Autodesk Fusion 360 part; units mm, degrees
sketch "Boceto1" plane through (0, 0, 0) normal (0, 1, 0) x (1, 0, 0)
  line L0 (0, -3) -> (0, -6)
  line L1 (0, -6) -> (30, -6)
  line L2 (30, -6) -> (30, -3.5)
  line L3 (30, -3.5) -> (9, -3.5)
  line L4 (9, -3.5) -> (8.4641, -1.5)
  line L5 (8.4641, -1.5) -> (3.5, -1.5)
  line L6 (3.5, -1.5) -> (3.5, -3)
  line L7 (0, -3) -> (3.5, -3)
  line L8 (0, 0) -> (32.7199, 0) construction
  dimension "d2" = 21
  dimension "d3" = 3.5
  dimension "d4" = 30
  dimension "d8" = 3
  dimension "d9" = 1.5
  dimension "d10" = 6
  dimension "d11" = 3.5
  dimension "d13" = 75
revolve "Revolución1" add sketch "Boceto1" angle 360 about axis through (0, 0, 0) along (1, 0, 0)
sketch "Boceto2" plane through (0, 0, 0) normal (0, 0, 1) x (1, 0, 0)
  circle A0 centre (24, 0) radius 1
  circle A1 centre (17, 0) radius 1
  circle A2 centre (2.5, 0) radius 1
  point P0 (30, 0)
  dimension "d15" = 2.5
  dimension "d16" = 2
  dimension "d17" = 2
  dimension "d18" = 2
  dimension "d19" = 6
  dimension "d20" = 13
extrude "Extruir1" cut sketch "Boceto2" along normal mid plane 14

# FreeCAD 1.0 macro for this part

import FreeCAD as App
import Part
import Sketcher
Q = App.Units.Quantity

doc = App.newDocument("Part")
params = doc.addObject("Spreadsheet::Sheet", "Params")
for row, (alias, value) in enumerate([
    ("sketch1_width", "30 mm"),
    ("sketch1_width2", "21 mm"),
    ("sketch1_height", "3 mm"),
    ("sketch1_width3", "3.5 mm"),
    ("sketch1_height2", "1.5 mm"),
    ("revolution_angle", "360 deg"),
    ("sketch2_diameter", "2 mm"),
    ("pocket1_length", "14 mm"),
], start=1):
    params.set(f"A{row}", alias)
    params.set(f"B{row}", "=" + value)
    params.setAlias(f"B{row}", alias)

body = doc.addObject("PartDesign::Body", "Body")

sketch1 = body.newObject("Sketcher::SketchObject", "Sketch")
sketch1.AttachmentSupport = (doc.getObject("XZ_Plane"), [""])
sketch1.MapMode = "FlatFace"
sketch1.addGeometry(Part.LineSegment(App.Vector(3.5, 3, 0), App.Vector(0, 3, 0)), False)
sketch1.addGeometry(Part.LineSegment(App.Vector(0, 3, 0), App.Vector(0, 6, 0)), False)
sketch1.addGeometry(Part.LineSegment(App.Vector(0, 6, 0), App.Vector(30, 6, 0)), False)
sketch1.addGeometry(Part.LineSegment(App.Vector(30, 6, 0), App.Vector(30, 3.5, 0)), False)
sketch1.addGeometry(Part.LineSegment(App.Vector(30, 3.5, 0), App.Vector(9, 3.5, 0)), False)
sketch1.addGeometry(Part.LineSegment(App.Vector(9, 3.5, 0), App.Vector(8.5, 1.5, 0)), False)
sketch1.addGeometry(Part.LineSegment(App.Vector(8.5, 1.5, 0), App.Vector(3.5, 1.5, 0)), False)
sketch1.addGeometry(Part.LineSegment(App.Vector(3.5, 1.5, 0), App.Vector(3.5, 3, 0)), False)
sketch1.addConstraint(Sketcher.Constraint("Coincident", 0, 2, 1, 1))
sketch1.addConstraint(Sketcher.Constraint("Coincident", 1, 2, 2, 1))
sketch1.addConstraint(Sketcher.Constraint("Coincident", 2, 2, 3, 1))
sketch1.addConstraint(Sketcher.Constraint("Coincident", 3, 2, 4, 1))
sketch1.addConstraint(Sketcher.Constraint("Coincident", 4, 2, 5, 1))
sketch1.addConstraint(Sketcher.Constraint("Coincident", 5, 2, 6, 1))
sketch1.addConstraint(Sketcher.Constraint("Coincident", 6, 2, 7, 1))
sketch1.addConstraint(Sketcher.Constraint("Coincident", 7, 2, 0, 1))
sketch1.addConstraint(Sketcher.Constraint("Horizontal", 0))
sketch1.addConstraint(Sketcher.Constraint("Vertical", 1))
sketch1.addConstraint(Sketcher.Constraint("Horizontal", 2))
sketch1.addConstraint(Sketcher.Constraint("Vertical", 3))
sketch1.addConstraint(Sketcher.Constraint("Horizontal", 4))
sketch1.addConstraint(Sketcher.Constraint("Horizontal", 6))
sketch1.addConstraint(Sketcher.Constraint("Vertical", 7))
sketch1.addConstraint(Sketcher.Constraint("PointOnObject", 0, 2, -2))
sketch1.addConstraint(Sketcher.Constraint("DistanceX", 2, 1, 2, 2, 30.0))
sketch1.addConstraint(Sketcher.Constraint("DistanceX", 4, 2, 4, 1, 21.0))
sketch1.addConstraint(Sketcher.Constraint("DistanceY", 1, 1, 1, 2, 3.0))
sketch1.addConstraint(Sketcher.Constraint("DistanceX", 0, 2, 0, 1, 3.5))
sketch1.addConstraint(Sketcher.Constraint("DistanceY", 7, 1, 7, 2, 1.5))
sketch1.addConstraint(Sketcher.Constraint("DistanceY", -1, 1, 0, 2, 3.0))
sketch1.addConstraint(Sketcher.Constraint("DistanceY", -1, 1, 3, 2, 3.5))
sketch1.addConstraint(Sketcher.Constraint("Angle", 5, Q("-105 deg")))
sketch1.setExpression("Constraints[16]", "Params.sketch1_width")
sketch1.setExpression("Constraints[17]", "Params.sketch1_width2")
sketch1.setExpression("Constraints[18]", "Params.sketch1_height")
sketch1.setExpression("Constraints[19]", "Params.sketch1_width3")
sketch1.setExpression("Constraints[20]", "Params.sketch1_height2")
revolution = body.newObject("PartDesign::Revolution", "Revolution")
revolution.Profile = sketch1
revolution.ReferenceAxis = (sketch1, ["H_Axis"])
revolution.setExpression("Angle", "Params.revolution_angle")

sketch2 = body.newObject("Sketcher::SketchObject", "Sketch001")
sketch2.AttachmentSupport = (doc.getObject("XY_Plane"), [""])
sketch2.MapMode = "FlatFace"
sketch2.addGeometry(Part.Circle(App.Vector(24, 0, 0), App.Vector(0, 0, 1), 1), False)
sketch2.addGeometry(Part.Circle(App.Vector(17, 0, 0), App.Vector(0, 0, 1), 1), False)
sketch2.addGeometry(Part.Circle(App.Vector(2.5, 0, 0), App.Vector(0, 0, 1), 1), False)
sketch2.addConstraint(Sketcher.Constraint("Equal", 0, 1))
sketch2.addConstraint(Sketcher.Constraint("Equal", 1, 2))
sketch2.addConstraint(Sketcher.Constraint("PointOnObject", 0, 3, -1))
sketch2.addConstraint(Sketcher.Constraint("PointOnObject", 1, 3, -1))
sketch2.addConstraint(Sketcher.Constraint("PointOnObject", 2, 3, -1))
sketch2.addConstraint(Sketcher.Constraint("Diameter", 0, 2.0))
sketch2.addConstraint(Sketcher.Constraint("DistanceX", -1, 1, 2, 3, 2.5))
sketch2.addConstraint(Sketcher.Constraint("DistanceX", -1, 1, 0, 3, 24.0))
sketch2.addConstraint(Sketcher.Constraint("DistanceX", -1, 1, 1, 3, 17.0))
sketch2.setExpression("Constraints[5]", "Params.sketch2_diameter")
pocket1 = body.newObject("PartDesign::Pocket", "Pocket")
pocket1.Profile = sketch2
pocket1.setExpression("Length", "Params.pocket1_length")
pocket1.Midplane = True

doc.recompute()
